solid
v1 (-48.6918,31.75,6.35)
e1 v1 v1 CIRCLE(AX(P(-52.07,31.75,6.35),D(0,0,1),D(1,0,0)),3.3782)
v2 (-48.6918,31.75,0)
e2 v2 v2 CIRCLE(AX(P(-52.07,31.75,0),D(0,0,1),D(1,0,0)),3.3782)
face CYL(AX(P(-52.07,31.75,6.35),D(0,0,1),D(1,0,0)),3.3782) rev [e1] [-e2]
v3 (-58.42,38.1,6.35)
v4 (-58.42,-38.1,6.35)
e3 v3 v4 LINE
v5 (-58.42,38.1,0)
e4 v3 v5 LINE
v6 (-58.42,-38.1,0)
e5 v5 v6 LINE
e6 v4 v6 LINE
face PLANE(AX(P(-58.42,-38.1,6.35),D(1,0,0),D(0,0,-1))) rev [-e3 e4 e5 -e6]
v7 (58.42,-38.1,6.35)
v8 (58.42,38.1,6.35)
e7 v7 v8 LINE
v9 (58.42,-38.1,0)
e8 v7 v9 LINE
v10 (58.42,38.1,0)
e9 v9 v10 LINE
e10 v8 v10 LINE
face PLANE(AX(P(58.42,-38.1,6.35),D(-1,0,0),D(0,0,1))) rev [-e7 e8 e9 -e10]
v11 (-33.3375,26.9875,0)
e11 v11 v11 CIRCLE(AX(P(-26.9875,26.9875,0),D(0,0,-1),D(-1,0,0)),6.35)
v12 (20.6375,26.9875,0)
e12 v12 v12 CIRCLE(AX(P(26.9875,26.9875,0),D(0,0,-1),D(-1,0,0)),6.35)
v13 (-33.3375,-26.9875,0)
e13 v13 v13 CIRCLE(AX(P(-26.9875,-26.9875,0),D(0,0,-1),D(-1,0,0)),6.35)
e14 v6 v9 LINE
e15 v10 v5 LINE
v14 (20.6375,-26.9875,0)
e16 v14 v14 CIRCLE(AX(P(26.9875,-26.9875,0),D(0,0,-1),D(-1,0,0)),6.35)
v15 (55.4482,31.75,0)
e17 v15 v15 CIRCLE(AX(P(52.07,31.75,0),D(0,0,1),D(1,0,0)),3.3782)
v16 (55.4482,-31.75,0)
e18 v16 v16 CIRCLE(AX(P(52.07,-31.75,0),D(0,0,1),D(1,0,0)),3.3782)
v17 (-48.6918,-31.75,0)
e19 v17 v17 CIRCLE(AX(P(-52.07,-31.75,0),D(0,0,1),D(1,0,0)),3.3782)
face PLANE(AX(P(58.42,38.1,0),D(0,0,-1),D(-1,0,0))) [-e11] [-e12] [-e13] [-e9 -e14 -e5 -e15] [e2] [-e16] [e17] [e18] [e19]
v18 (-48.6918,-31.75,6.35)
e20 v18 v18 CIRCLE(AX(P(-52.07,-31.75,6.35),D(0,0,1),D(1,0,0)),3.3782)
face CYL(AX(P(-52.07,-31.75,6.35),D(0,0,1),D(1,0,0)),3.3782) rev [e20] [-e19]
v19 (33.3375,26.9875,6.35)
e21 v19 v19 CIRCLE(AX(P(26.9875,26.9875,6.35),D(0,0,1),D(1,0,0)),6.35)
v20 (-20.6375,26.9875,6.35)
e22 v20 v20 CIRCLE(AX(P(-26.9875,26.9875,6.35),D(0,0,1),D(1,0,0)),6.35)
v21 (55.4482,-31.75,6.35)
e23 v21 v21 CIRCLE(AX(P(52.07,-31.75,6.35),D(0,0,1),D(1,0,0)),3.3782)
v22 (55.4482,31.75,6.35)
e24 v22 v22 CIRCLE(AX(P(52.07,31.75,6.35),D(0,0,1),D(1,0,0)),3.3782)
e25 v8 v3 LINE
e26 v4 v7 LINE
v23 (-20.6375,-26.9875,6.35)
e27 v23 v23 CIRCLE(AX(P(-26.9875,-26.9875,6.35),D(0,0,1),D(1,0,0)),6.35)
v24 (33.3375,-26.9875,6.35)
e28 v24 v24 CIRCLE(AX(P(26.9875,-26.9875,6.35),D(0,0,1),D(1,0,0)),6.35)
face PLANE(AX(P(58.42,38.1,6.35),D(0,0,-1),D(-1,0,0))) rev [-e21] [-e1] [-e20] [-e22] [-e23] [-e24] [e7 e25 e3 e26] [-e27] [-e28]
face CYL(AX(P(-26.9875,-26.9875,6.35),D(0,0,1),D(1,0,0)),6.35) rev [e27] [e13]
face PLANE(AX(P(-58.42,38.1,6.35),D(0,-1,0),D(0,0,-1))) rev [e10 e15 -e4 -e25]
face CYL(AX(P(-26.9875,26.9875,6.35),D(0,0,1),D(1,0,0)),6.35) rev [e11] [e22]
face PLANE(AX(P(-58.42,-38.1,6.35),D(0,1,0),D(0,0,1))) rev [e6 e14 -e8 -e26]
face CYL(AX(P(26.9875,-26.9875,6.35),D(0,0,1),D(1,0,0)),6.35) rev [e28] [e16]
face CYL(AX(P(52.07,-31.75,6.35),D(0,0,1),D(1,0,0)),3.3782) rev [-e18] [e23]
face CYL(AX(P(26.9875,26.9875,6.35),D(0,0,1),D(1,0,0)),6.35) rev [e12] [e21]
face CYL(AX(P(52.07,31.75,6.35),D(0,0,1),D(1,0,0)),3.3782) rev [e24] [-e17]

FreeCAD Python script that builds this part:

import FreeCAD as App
import Part
import Sketcher
Q = App.Units.Quantity

doc = App.newDocument("Part")
body = doc.addObject("PartDesign::Body", "Body")

# Sketch on XY plane
sketch1 = doc.addObject("Sketcher::SketchObject", "Sketch")
body.addObject(sketch1)
sketch1.AttachmentSupport = (doc.XY_Plane, [""])
sketch1.MapMode = "FlatFace"
sketch1.addGeometry([
    Part.LineSegment(App.Vector(-58, 38, 0), App.Vector(-58, -38, 0)),
    Part.LineSegment(App.Vector(-58, -38, 0), App.Vector(58, -38, 0)),
    Part.LineSegment(App.Vector(58, -38, 0), App.Vector(58, 38, 0)),
    Part.LineSegment(App.Vector(58, 38, 0), App.Vector(-58, 38, 0)),
], False)
sketch1.addConstraint([
    Sketcher.Constraint("Coincident", 0, 2, 1, 1),
    Sketcher.Constraint("Coincident", 1, 2, 2, 1),
    Sketcher.Constraint("Coincident", 2, 2, 3, 1),
    Sketcher.Constraint("Coincident", 3, 2, 0, 1),
    Sketcher.Constraint("Vertical", 0),
    Sketcher.Constraint("Horizontal", 1),
    Sketcher.Constraint("Vertical", 2),
    Sketcher.Constraint("Horizontal", 3),
    Sketcher.Constraint("Symmetric", 0, 2, 2, 2, -1, 1),
    Sketcher.Constraint("DistanceY", 0, 2, 0, 1, Q("3 in")),
    Sketcher.Constraint("DistanceX", 1, 1, 1, 2, Q("4.6 in")),
])
pad1 = doc.addObject("PartDesign::Pad", "Pad")
body.addObject(pad1)
pad1.Profile = sketch1
pad1.Length = Q("0.25 in")

# Sketch on XY plane
sketch2 = doc.addObject("Sketcher::SketchObject", "Sketch001")
body.addObject(sketch2)
sketch2.AttachmentSupport = (doc.XY_Plane, [""])
sketch2.MapMode = "FlatFace"
sketch2.AttachmentOffset = App.Placement(App.Vector(0, 0, 0.25 * 25.4), App.Rotation())
sketch2.addGeometry(Part.Circle(App.Vector(-52.1, 31.8, 0), App.Vector(0, 0, 1), 3.4), False)
sketch2.addConstraint([
    Sketcher.Constraint("Diameter", 0, Q("0.266 in")),
    Sketcher.Constraint("DistanceX", 0, 3, -1, 1, Q("2.05 in")),
    Sketcher.Constraint("DistanceY", -1, 1, 0, 3, Q("1.25 in")),
])
doc.recompute()
hole = doc.addObject("PartDesign::Hole", "Hole")
body.addObject(hole)
hole.Profile = sketch2
hole.ThreadType = "None"
hole.Diameter = Q("0.266 in")
hole.DepthType = "ThroughAll"
doc.recompute()

mirrored = doc.addObject("PartDesign::Mirrored", "Mirrored")
body.addObject(mirrored)
mirrored.Originals = [hole]
mirrored.MirrorPlane = (doc.XZ_Plane, [""])
body.Tip = mirrored
doc.recompute()

mirrored2 = doc.addObject("PartDesign::Mirrored", "Mirrored001")
body.addObject(mirrored2)
mirrored2.Originals = [hole]
mirrored2.MirrorPlane = (doc.YZ_Plane, [""])
body.Tip = mirrored2

# Sketch on XY plane
sketch3 = doc.addObject("Sketcher::SketchObject", "Sketch002")
body.addObject(sketch3)
sketch3.AttachmentSupport = (doc.XY_Plane, [""])
sketch3.MapMode = "FlatFace"
sketch3.AttachmentOffset = App.Placement(App.Vector(0, 0, 0.25 * 25.4), App.Rotation())
sketch3.addGeometry(Part.Circle(App.Vector(52.1, -31.8, 0), App.Vector(0, 0, 1), 3.4), False)
sketch3.addConstraint([
    Sketcher.Constraint("Diameter", 0, Q("0.266 in")),
    Sketcher.Constraint("DistanceX", -1, 1, 0, 3, Q("2.05 in")),
    Sketcher.Constraint("DistanceY", 0, 3, -1, 1, Q("1.25 in")),
])
doc.recompute()
hole2 = doc.addObject("PartDesign::Hole", "Hole001")
body.addObject(hole2)
hole2.Profile = sketch3
hole2.ThreadType = "None"
hole2.Diameter = Q("0.266 in")
hole2.DepthType = "ThroughAll"

# Sketch on XY plane
sketch4 = doc.addObject("Sketcher::SketchObject", "Sketch003")
body.addObject(sketch4)
sketch4.AttachmentSupport = (doc.XY_Plane, [""])
sketch4.MapMode = "FlatFace"
sketch4.AttachmentOffset = App.Placement(App.Vector(0, 0, 0.25 * 25.4), App.Rotation())
sketch4.addGeometry([
    Part.Circle(App.Vector(-27, 27, 0), App.Vector(0, 0, 1), 6),
    Part.Circle(App.Vector(27, 27, 0), App.Vector(0, 0, 1), 6),
    Part.Circle(App.Vector(27, -27, 0), App.Vector(0, 0, 1), 6),
    Part.Circle(App.Vector(-27, -27, 0), App.Vector(0, 0, 1), 6),
], False)
sketch4.addConstraint([
    Sketcher.Constraint("Equal", 0, 1),
    Sketcher.Constraint("Equal", 1, 2),
    Sketcher.Constraint("Equal", 2, 3),
    Sketcher.Constraint("Symmetric", 0, 3, 2, 3, -1, 1),
    Sketcher.Constraint("Symmetric", 1, 3, 3, 3, -1, 1),
    Sketcher.Constraint("Symmetric", 0, 3, 1, 3, -2),
    Sketcher.Constraint("Diameter", 0, Q("0.5 in")),
    Sketcher.Constraint("DistanceX", 0, 3, -1, 1, Q("1.0625 in")),
    Sketcher.Constraint("DistanceY", -1, 1, 0, 3, Q("1.0625 in")),
])
doc.recompute()
hole3 = doc.addObject("PartDesign::Hole", "Hole002")
body.addObject(hole3)
hole3.Profile = sketch4
hole3.ThreadType = "None"
hole3.Diameter = Q("0.5 in")
hole3.DepthType = "Dimension"
hole3.Depth = Q("0.7 in")
hole3.DrillPoint = "Angled"
hole3.DrillPointAngle = 118

doc.recompute()
